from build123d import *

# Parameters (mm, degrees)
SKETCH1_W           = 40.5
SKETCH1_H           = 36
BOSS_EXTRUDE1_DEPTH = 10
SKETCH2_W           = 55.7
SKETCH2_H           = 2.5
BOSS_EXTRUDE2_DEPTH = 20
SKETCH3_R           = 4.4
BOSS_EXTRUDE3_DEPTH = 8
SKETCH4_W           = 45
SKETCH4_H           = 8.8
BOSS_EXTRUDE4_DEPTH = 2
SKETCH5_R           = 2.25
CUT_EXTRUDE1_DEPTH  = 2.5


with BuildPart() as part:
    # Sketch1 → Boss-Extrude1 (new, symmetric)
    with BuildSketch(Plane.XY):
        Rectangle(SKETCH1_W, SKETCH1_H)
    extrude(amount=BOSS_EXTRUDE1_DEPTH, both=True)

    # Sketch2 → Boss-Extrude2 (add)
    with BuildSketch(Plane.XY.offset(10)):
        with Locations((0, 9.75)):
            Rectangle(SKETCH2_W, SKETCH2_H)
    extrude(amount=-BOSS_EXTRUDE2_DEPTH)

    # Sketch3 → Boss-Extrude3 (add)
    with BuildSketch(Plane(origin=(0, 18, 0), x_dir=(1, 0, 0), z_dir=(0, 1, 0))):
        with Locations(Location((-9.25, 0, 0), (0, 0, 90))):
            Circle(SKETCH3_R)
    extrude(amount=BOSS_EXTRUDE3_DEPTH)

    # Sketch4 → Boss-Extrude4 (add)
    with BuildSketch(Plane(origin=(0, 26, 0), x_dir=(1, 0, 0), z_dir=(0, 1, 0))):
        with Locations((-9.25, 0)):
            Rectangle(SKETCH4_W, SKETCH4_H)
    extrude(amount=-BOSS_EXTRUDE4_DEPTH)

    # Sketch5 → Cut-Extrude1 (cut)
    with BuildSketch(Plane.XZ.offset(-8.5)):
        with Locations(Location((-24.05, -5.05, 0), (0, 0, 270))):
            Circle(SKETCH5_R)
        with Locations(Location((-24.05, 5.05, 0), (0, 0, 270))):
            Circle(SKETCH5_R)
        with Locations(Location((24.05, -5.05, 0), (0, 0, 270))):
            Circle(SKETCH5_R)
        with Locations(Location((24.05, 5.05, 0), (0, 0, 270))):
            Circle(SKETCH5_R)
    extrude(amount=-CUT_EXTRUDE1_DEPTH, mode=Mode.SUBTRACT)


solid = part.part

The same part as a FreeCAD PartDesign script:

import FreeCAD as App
import Part
import Sketcher

doc = App.newDocument("Part")
body = doc.addObject("PartDesign::Body", "Body")

sketch1 = body.newObject("Sketcher::SketchObject", "Sketch")
sketch1.AttachmentSupport = (doc.getObject("XY_Plane"), [""])
sketch1.MapMode = "FlatFace"
sketch1.addGeometry([
    Part.LineSegment(App.Vector(-20.25, 18, 0), App.Vector(-20.25, -18, 0)),
    Part.LineSegment(App.Vector(-20.25, -18, 0), App.Vector(20.25, -18, 0)),
    Part.LineSegment(App.Vector(20.25, -18, 0), App.Vector(20.25, 18, 0)),
    Part.LineSegment(App.Vector(20.25, 18, 0), App.Vector(-20.25, 18, 0)),
], False)
sketch1.addConstraint([
    Sketcher.Constraint("Coincident", 0, 2, 1, 1),
    Sketcher.Constraint("Coincident", 1, 2, 2, 1),
    Sketcher.Constraint("Coincident", 2, 2, 3, 1),
    Sketcher.Constraint("Coincident", 3, 2, 0, 1),
    Sketcher.Constraint("Vertical", 0),
    Sketcher.Constraint("Horizontal", 1),
    Sketcher.Constraint("Vertical", 2),
    Sketcher.Constraint("Horizontal", 3),
    Sketcher.Constraint("Symmetric", 0, 2, 2, 2, -1, 1),
    Sketcher.Constraint("DistanceY", 0, 2, 0, 1, 36.0),
    Sketcher.Constraint("DistanceX", 1, 1, 1, 2, 40.5),
])
pad1 = body.newObject("PartDesign::Pad", "Pad")
pad1.Profile = sketch1
pad1.Length = 20
pad1.Midplane = True

sketch2 = body.newObject("Sketcher::SketchObject", "Sketch001")
sketch2.AttachmentSupport = (doc.getObject("XY_Plane"), [""])
sketch2.MapMode = "FlatFace"
sketch2.AttachmentOffset = App.Placement(App.Vector(0, 0, 10), App.Rotation())
sketch2.addGeometry([
    Part.LineSegment(App.Vector(-27.85, 11, 0), App.Vector(-27.85, 8.5, 0)),
    Part.LineSegment(App.Vector(-27.85, 8.5, 0), App.Vector(27.85, 8.5, 0)),
    Part.LineSegment(App.Vector(27.85, 8.5, 0), App.Vector(27.85, 11, 0)),
    Part.LineSegment(App.Vector(27.85, 11, 0), App.Vector(-27.85, 11, 0)),
], False)
sketch2.addConstraint([
    Sketcher.Constraint("Coincident", 0, 2, 1, 1),
    Sketcher.Constraint("Coincident", 1, 2, 2, 1),
    Sketcher.Constraint("Coincident", 2, 2, 3, 1),
    Sketcher.Constraint("Coincident", 3, 2, 0, 1),
    Sketcher.Constraint("Vertical", 0),
    Sketcher.Constraint("Horizontal", 1),
    Sketcher.Constraint("Vertical", 2),
    Sketcher.Constraint("Horizontal", 3),
    Sketcher.Constraint("DistanceX", 1, 1, 1, 2, 55.7),
    Sketcher.Constraint("DistanceY", 0, 2, 0, 1, 2.5),
    Sketcher.Constraint("DistanceY", -1, 1, 2, 2, 11.0),
    Sketcher.Constraint("DistanceX", 0, 2, -1, 1, 27.85),
])
pad2 = body.newObject("PartDesign::Pad", "Pad001")
pad2.Profile = sketch2
pad2.Length = 20
pad2.Reversed = True

sketch3 = body.newObject("Sketcher::SketchObject", "Sketch002")
sketch3.AttachmentSupport = (doc.getObject("XZ_Plane"), [""])
sketch3.MapMode = "FlatFace"
sketch3.AttachmentOffset = App.Placement(App.Vector(0, 0, -18), App.Rotation())
sketch3.addGeometry(Part.Circle(App.Vector(-9.25, 0, 0), App.Vector(0, 0, 1), 4.4), False)
sketch3.addConstraint([
    Sketcher.Constraint("PointOnObject", 0, 3, -1),
    Sketcher.Constraint("Diameter", 0, 8.8),
    Sketcher.Constraint("DistanceX", 0, 3, -1, 1, 9.25),
])
pad3 = body.newObject("PartDesign::Pad", "Pad002")
pad3.Profile = sketch3
pad3.Length = 8
pad3.Reversed = True

sketch4 = body.newObject("Sketcher::SketchObject", "Sketch003")
sketch4.AttachmentSupport = (doc.getObject("XZ_Plane"), [""])
sketch4.MapMode = "FlatFace"
sketch4.AttachmentOffset = App.Placement(App.Vector(0, 0, -26), App.Rotation())
sketch4.addGeometry([
    Part.LineSegment(App.Vector(-31.75, -4.4, 0), App.Vector(-31.75, 4.4, 0)),
    Part.LineSegment(App.Vector(-31.75, 4.4, 0), App.Vector(13.25, 4.4, 0)),
    Part.LineSegment(App.Vector(13.25, 4.4, 0), App.Vector(13.25, -4.4, 0)),
    Part.LineSegment(App.Vector(13.25, -4.4, 0), App.Vector(-31.75, -4.4, 0)),
], False)
sketch4.addConstraint([
    Sketcher.Constraint("Coincident", 0, 2, 1, 1),
    Sketcher.Constraint("Coincident", 1, 2, 2, 1),
    Sketcher.Constraint("Coincident", 2, 2, 3, 1),
    Sketcher.Constraint("Coincident", 3, 2, 0, 1),
    Sketcher.Constraint("Vertical", 0),
    Sketcher.Constraint("Horizontal", 1),
    Sketcher.Constraint("Vertical", 2),
    Sketcher.Constraint("Horizontal", 3),
    Sketcher.Constraint("DistanceX", 1, 1, 1, 2, 45.0),
    Sketcher.Constraint("DistanceY", 0, 1, 0, 2, 8.8),
    Sketcher.Constraint("DistanceY", -1, 1, 0, 2, 4.4),
    Sketcher.Constraint("DistanceX", 0, 2, -1, 1, 31.75),
])
pad4 = body.newObject("PartDesign::Pad", "Pad003")
pad4.Profile = sketch4
pad4.Length = 2

sketch5 = body.newObject("Sketcher::SketchObject", "Sketch004")
sketch5.AttachmentSupport = (doc.getObject("XZ_Plane"), [""])
sketch5.MapMode = "FlatFace"
sketch5.AttachmentOffset = App.Placement(App.Vector(0, 0, -8.5), App.Rotation())
sketch5.addGeometry([
    Part.Circle(App.Vector(-24.05, -5.05, 0), App.Vector(0, 0, 1), 2.25),
    Part.Circle(App.Vector(-24.05, 5.05, 0), App.Vector(0, 0, 1), 2.25),
    Part.Circle(App.Vector(24.05, -5.05, 0), App.Vector(0, 0, 1), 2.25),
    Part.Circle(App.Vector(24.05, 5.05, 0), App.Vector(0, 0, 1), 2.25),
], False)
sketch5.addConstraint([
    Sketcher.Constraint("Equal", 0, 1),
    Sketcher.Constraint("Equal", 1, 2),
    Sketcher.Constraint("Equal", 2, 3),
    Sketcher.Constraint("Symmetric", 1, 3, 2, 3, -1, 1),
    Sketcher.Constraint("Symmetric", 0, 3, 3, 3, -1, 1),
    Sketcher.Constraint("Symmetric", 0, 3, 2, 3, -2),
    Sketcher.Constraint("Diameter", 0, 4.5),
    Sketcher.Constraint("DistanceY", 0, 3, 1, 3, 10.1),
    Sketcher.Constraint("DistanceX", 0, 3, 2, 3, 48.1),
])
pocket1 = body.newObject("PartDesign::Pocket", "Pocket")
pocket1.Profile = sketch5
pocket1.Length = 2.5

doc.recompute()
